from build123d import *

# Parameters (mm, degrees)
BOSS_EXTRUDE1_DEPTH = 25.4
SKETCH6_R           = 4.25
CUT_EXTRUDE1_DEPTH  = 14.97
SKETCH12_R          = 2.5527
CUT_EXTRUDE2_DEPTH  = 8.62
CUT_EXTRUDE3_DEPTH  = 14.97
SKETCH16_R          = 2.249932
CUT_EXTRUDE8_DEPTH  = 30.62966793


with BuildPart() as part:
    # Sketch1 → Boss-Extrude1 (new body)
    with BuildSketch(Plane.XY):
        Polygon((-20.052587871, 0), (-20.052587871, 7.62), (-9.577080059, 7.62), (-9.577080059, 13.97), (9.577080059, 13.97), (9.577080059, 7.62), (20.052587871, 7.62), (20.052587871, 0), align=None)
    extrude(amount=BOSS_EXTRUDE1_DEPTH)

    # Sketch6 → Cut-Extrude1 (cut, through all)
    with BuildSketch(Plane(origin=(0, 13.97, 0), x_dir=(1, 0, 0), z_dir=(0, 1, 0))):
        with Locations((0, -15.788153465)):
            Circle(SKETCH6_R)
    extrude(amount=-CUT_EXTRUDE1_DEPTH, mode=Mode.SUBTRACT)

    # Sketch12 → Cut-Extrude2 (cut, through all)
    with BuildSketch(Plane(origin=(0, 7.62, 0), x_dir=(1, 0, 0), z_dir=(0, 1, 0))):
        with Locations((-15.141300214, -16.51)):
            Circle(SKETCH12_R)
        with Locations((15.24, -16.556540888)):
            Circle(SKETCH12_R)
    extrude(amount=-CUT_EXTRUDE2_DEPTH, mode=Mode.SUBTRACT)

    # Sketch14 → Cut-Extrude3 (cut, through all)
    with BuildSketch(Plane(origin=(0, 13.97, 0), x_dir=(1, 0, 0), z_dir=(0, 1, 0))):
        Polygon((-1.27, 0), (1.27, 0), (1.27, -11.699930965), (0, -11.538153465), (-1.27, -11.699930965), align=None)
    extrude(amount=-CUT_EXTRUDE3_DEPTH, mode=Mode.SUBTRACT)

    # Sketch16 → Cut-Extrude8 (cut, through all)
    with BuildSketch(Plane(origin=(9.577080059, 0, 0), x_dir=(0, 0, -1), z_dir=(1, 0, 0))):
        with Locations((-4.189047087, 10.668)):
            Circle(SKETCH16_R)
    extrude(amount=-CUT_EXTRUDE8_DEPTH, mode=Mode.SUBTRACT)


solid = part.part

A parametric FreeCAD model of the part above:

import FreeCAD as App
import Part
import Sketcher

V = App.Vector
Q = App.Units.Quantity

doc = App.newDocument("Part")
body = doc.addObject("PartDesign::Body", "Body")

# Sketch on XY plane
sketch1 = doc.addObject("Sketcher::SketchObject", "Sketch")
body.addObject(sketch1)
sketch1.AttachmentSupport = (doc.XY_Plane, [""])
sketch1.MapMode = "FlatFace"
sketch1.addGeometry(Part.LineSegment(V(-20, 8, 0), V(-20, 0, 0)), False)
sketch1.addGeometry(Part.LineSegment(V(-20, 0, 0), V(20, 0, 0)), False)
sketch1.addGeometry(Part.LineSegment(V(20, 0, 0), V(20, 8, 0)), False)
sketch1.addGeometry(Part.LineSegment(V(20, 8, 0), V(10, 8, 0)), False)
sketch1.addGeometry(Part.LineSegment(V(10, 8, 0), V(10, 14, 0)), False)
sketch1.addGeometry(Part.LineSegment(V(10, 14, 0), V(-10, 14, 0)), False)
sketch1.addGeometry(Part.LineSegment(V(-10, 14, 0), V(-10, 8, 0)), False)
sketch1.addGeometry(Part.LineSegment(V(-10, 8, 0), V(-20, 8, 0)), False)
sketch1.addConstraint(Sketcher.Constraint("Coincident", 0, 2, 1, 1))
sketch1.addConstraint(Sketcher.Constraint("Coincident", 1, 2, 2, 1))
sketch1.addConstraint(Sketcher.Constraint("Coincident", 2, 2, 3, 1))
sketch1.addConstraint(Sketcher.Constraint("Coincident", 3, 2, 4, 1))
sketch1.addConstraint(Sketcher.Constraint("Coincident", 4, 2, 5, 1))
sketch1.addConstraint(Sketcher.Constraint("Coincident", 5, 2, 6, 1))
sketch1.addConstraint(Sketcher.Constraint("Coincident", 6, 2, 7, 1))
sketch1.addConstraint(Sketcher.Constraint("Coincident", 7, 2, 0, 1))
sketch1.addConstraint(Sketcher.Constraint("Vertical", 0))
sketch1.addConstraint(Sketcher.Constraint("Horizontal", 1))
sketch1.addConstraint(Sketcher.Constraint("Vertical", 2))
sketch1.addConstraint(Sketcher.Constraint("Horizontal", 3))
sketch1.addConstraint(Sketcher.Constraint("Vertical", 4))
sketch1.addConstraint(Sketcher.Constraint("Horizontal", 5))
sketch1.addConstraint(Sketcher.Constraint("Vertical", 6))
sketch1.addConstraint(Sketcher.Constraint("Horizontal", 7))
sketch1.addConstraint(Sketcher.Constraint("Symmetric", 0, 2, 1, 2, -1, 1))
sketch1.addConstraint(Sketcher.Constraint("Symmetric", 3, 2, 6, 2, -2))
sketch1.addConstraint(Sketcher.Constraint("DistanceY", 0, 2, 0, 1, Q("0.3 in")))
sketch1.addConstraint(Sketcher.Constraint("DistanceY", 4, 1, 4, 2, Q("0.25 in")))
sketch1.addConstraint(Sketcher.Constraint("DistanceX", 5, 2, 5, 1, Q("19.15416 mm")))
sketch1.addConstraint(Sketcher.Constraint("DistanceX", 1, 1, 1, 2, Q("40.105176 mm")))
pad1 = doc.addObject("PartDesign::Pad", "Pad")
body.addObject(pad1)
pad1.Profile = sketch1
pad1.Length = Q("1 in")

# Sketch on XZ plane
sketch2 = doc.addObject("Sketcher::SketchObject", "Sketch001")
body.addObject(sketch2)
sketch2.AttachmentSupport = (doc.XZ_Plane, [""])
sketch2.MapMode = "FlatFace"
sketch2.AttachmentOffset = App.Placement(V(0, 0, -0.55 * 25.4), App.Rotation())
sketch2.addGeometry(Part.Circle(V(0, 15.8, 0), V(0, 0, 1), 4.2), False)
sketch2.addConstraint(Sketcher.Constraint("PointOnObject", 0, 3, -2))
sketch2.addConstraint(Sketcher.Constraint("Diameter", 0, Q("8.5 mm")))
sketch2.addConstraint(Sketcher.Constraint("DistanceY", -1, 1, 0, 3, Q("15.788153 mm")))
pocket1 = doc.addObject("PartDesign::Pocket", "Pocket")
body.addObject(pocket1)
pocket1.Profile = sketch2
pocket1.Type = "ThroughAll"
pocket1.Reversed = True

# Sketch on XZ plane
sketch3 = doc.addObject("Sketcher::SketchObject", "Sketch002")
body.addObject(sketch3)
sketch3.AttachmentSupport = (doc.XZ_Plane, [""])
sketch3.MapMode = "FlatFace"
sketch3.AttachmentOffset = App.Placement(V(0, 0, -0.3 * 25.4), App.Rotation())
sketch3.addGeometry(Part.Circle(V(-15.1, 16.5, 0), V(0, 0, 1), 2.6), False)
sketch3.addGeometry(Part.Circle(V(15.2, 16.6, 0), V(0, 0, 1), 2.6), False)
sketch3.addConstraint(Sketcher.Constraint("Equal", 0, 1))
sketch3.addConstraint(Sketcher.Constraint("Diameter", 0, Q("0.201 in")))
sketch3.addConstraint(Sketcher.Constraint("DistanceX", -1, 1, 1, 3, Q("0.6 in")))
sketch3.addConstraint(Sketcher.Constraint("DistanceY", -1, 1, 0, 3, Q("0.65 in")))
sketch3.addConstraint(Sketcher.Constraint("DistanceX", 0, 3, -1, 1, Q("15.1413 mm")))
sketch3.addConstraint(Sketcher.Constraint("DistanceY", -1, 1, 1, 3, Q("16.556541 mm")))
pocket2 = doc.addObject("PartDesign::Pocket", "Pocket001")
body.addObject(pocket2)
pocket2.Profile = sketch3
pocket2.Type = "ThroughAll"
pocket2.Reversed = True

# Sketch on XZ plane
sketch4 = doc.addObject("Sketcher::SketchObject", "Sketch003")
body.addObject(sketch4)
sketch4.AttachmentSupport = (doc.XZ_Plane, [""])
sketch4.MapMode = "FlatFace"
sketch4.AttachmentOffset = App.Placement(V(0, 0, -0.55 * 25.4), App.Rotation())
sketch4.addGeometry(Part.LineSegment(V(1.3, 0, 0), V(-1.3, 0, 0)), False)
sketch4.addGeometry(Part.LineSegment(V(-1.3, 0, 0), V(-1.3, 11.7, 0)), False)
sketch4.addGeometry(Part.LineSegment(V(-1.3, 11.7, 0), V(0, 11.5, 0)), False)
sketch4.addGeometry(Part.LineSegment(V(0, 11.5, 0), V(1.3, 11.7, 0)), False)
sketch4.addGeometry(Part.LineSegment(V(1.3, 11.7, 0), V(1.3, 0, 0)), False)
sketch4.addConstraint(Sketcher.Constraint("Coincident", 0, 2, 1, 1))
sketch4.addConstraint(Sketcher.Constraint("Coincident", 1, 2, 2, 1))
sketch4.addConstraint(Sketcher.Constraint("Coincident", 2, 2, 3, 1))
sketch4.addConstraint(Sketcher.Constraint("Coincident", 3, 2, 4, 1))
sketch4.addConstraint(Sketcher.Constraint("Coincident", 4, 2, 0, 1))
sketch4.addConstraint(Sketcher.Constraint("Horizontal", 0))
sketch4.addConstraint(Sketcher.Constraint("Vertical", 1))
sketch4.addConstraint(Sketcher.Constraint("Vertical", 4))
sketch4.addConstraint(Sketcher.Constraint("Symmetric", 0, 2, 4, 2, -1, 1))
sketch4.addConstraint(Sketcher.Constraint("PointOnObject", 2, 2, -2))
sketch4.addConstraint(Sketcher.Constraint("Horizontal", 1, 2, 3, 2))
sketch4.addConstraint(Sketcher.Constraint("DistanceX", 0, 2, 0, 1, Q("0.1 in")))
sketch4.addConstraint(Sketcher.Constraint("DistanceY", 1, 1, 1, 2, Q("11.699931 mm")))
sketch4.addConstraint(Sketcher.Constraint("Distance", 2, Q("1.280262 mm")))
pocket3 = doc.addObject("PartDesign::Pocket", "Pocket002")
body.addObject(pocket3)
pocket3.Profile = sketch4
pocket3.Type = "ThroughAll"
pocket3.Reversed = True

# Sketch on YZ plane
sketch5 = doc.addObject("Sketcher::SketchObject", "Sketch004")
body.addObject(sketch5)
sketch5.AttachmentSupport = (doc.YZ_Plane, [""])
sketch5.MapMode = "FlatFace"
sketch5.AttachmentOffset = App.Placement(V(0, 0, 9.57708), App.Rotation())
sketch5.addGeometry(Part.Circle(V(10.7, 4.2, 0), V(0, 0, 1), 2.2), False)
sketch5.addConstraint(Sketcher.Constraint("DistanceX", -1, 1, 0, 3, Q("0.42 in")))
sketch5.addConstraint(Sketcher.Constraint("Diameter", 0, Q("4.499864 mm")))
sketch5.addConstraint(Sketcher.Constraint("DistanceY", -1, 1, 0, 3, Q("4.189047 mm")))
pocket4 = doc.addObject("PartDesign::Pocket", "Pocket003")
body.addObject(pocket4)
pocket4.Profile = sketch5
pocket4.Type = "ThroughAll"

doc.recompute()
